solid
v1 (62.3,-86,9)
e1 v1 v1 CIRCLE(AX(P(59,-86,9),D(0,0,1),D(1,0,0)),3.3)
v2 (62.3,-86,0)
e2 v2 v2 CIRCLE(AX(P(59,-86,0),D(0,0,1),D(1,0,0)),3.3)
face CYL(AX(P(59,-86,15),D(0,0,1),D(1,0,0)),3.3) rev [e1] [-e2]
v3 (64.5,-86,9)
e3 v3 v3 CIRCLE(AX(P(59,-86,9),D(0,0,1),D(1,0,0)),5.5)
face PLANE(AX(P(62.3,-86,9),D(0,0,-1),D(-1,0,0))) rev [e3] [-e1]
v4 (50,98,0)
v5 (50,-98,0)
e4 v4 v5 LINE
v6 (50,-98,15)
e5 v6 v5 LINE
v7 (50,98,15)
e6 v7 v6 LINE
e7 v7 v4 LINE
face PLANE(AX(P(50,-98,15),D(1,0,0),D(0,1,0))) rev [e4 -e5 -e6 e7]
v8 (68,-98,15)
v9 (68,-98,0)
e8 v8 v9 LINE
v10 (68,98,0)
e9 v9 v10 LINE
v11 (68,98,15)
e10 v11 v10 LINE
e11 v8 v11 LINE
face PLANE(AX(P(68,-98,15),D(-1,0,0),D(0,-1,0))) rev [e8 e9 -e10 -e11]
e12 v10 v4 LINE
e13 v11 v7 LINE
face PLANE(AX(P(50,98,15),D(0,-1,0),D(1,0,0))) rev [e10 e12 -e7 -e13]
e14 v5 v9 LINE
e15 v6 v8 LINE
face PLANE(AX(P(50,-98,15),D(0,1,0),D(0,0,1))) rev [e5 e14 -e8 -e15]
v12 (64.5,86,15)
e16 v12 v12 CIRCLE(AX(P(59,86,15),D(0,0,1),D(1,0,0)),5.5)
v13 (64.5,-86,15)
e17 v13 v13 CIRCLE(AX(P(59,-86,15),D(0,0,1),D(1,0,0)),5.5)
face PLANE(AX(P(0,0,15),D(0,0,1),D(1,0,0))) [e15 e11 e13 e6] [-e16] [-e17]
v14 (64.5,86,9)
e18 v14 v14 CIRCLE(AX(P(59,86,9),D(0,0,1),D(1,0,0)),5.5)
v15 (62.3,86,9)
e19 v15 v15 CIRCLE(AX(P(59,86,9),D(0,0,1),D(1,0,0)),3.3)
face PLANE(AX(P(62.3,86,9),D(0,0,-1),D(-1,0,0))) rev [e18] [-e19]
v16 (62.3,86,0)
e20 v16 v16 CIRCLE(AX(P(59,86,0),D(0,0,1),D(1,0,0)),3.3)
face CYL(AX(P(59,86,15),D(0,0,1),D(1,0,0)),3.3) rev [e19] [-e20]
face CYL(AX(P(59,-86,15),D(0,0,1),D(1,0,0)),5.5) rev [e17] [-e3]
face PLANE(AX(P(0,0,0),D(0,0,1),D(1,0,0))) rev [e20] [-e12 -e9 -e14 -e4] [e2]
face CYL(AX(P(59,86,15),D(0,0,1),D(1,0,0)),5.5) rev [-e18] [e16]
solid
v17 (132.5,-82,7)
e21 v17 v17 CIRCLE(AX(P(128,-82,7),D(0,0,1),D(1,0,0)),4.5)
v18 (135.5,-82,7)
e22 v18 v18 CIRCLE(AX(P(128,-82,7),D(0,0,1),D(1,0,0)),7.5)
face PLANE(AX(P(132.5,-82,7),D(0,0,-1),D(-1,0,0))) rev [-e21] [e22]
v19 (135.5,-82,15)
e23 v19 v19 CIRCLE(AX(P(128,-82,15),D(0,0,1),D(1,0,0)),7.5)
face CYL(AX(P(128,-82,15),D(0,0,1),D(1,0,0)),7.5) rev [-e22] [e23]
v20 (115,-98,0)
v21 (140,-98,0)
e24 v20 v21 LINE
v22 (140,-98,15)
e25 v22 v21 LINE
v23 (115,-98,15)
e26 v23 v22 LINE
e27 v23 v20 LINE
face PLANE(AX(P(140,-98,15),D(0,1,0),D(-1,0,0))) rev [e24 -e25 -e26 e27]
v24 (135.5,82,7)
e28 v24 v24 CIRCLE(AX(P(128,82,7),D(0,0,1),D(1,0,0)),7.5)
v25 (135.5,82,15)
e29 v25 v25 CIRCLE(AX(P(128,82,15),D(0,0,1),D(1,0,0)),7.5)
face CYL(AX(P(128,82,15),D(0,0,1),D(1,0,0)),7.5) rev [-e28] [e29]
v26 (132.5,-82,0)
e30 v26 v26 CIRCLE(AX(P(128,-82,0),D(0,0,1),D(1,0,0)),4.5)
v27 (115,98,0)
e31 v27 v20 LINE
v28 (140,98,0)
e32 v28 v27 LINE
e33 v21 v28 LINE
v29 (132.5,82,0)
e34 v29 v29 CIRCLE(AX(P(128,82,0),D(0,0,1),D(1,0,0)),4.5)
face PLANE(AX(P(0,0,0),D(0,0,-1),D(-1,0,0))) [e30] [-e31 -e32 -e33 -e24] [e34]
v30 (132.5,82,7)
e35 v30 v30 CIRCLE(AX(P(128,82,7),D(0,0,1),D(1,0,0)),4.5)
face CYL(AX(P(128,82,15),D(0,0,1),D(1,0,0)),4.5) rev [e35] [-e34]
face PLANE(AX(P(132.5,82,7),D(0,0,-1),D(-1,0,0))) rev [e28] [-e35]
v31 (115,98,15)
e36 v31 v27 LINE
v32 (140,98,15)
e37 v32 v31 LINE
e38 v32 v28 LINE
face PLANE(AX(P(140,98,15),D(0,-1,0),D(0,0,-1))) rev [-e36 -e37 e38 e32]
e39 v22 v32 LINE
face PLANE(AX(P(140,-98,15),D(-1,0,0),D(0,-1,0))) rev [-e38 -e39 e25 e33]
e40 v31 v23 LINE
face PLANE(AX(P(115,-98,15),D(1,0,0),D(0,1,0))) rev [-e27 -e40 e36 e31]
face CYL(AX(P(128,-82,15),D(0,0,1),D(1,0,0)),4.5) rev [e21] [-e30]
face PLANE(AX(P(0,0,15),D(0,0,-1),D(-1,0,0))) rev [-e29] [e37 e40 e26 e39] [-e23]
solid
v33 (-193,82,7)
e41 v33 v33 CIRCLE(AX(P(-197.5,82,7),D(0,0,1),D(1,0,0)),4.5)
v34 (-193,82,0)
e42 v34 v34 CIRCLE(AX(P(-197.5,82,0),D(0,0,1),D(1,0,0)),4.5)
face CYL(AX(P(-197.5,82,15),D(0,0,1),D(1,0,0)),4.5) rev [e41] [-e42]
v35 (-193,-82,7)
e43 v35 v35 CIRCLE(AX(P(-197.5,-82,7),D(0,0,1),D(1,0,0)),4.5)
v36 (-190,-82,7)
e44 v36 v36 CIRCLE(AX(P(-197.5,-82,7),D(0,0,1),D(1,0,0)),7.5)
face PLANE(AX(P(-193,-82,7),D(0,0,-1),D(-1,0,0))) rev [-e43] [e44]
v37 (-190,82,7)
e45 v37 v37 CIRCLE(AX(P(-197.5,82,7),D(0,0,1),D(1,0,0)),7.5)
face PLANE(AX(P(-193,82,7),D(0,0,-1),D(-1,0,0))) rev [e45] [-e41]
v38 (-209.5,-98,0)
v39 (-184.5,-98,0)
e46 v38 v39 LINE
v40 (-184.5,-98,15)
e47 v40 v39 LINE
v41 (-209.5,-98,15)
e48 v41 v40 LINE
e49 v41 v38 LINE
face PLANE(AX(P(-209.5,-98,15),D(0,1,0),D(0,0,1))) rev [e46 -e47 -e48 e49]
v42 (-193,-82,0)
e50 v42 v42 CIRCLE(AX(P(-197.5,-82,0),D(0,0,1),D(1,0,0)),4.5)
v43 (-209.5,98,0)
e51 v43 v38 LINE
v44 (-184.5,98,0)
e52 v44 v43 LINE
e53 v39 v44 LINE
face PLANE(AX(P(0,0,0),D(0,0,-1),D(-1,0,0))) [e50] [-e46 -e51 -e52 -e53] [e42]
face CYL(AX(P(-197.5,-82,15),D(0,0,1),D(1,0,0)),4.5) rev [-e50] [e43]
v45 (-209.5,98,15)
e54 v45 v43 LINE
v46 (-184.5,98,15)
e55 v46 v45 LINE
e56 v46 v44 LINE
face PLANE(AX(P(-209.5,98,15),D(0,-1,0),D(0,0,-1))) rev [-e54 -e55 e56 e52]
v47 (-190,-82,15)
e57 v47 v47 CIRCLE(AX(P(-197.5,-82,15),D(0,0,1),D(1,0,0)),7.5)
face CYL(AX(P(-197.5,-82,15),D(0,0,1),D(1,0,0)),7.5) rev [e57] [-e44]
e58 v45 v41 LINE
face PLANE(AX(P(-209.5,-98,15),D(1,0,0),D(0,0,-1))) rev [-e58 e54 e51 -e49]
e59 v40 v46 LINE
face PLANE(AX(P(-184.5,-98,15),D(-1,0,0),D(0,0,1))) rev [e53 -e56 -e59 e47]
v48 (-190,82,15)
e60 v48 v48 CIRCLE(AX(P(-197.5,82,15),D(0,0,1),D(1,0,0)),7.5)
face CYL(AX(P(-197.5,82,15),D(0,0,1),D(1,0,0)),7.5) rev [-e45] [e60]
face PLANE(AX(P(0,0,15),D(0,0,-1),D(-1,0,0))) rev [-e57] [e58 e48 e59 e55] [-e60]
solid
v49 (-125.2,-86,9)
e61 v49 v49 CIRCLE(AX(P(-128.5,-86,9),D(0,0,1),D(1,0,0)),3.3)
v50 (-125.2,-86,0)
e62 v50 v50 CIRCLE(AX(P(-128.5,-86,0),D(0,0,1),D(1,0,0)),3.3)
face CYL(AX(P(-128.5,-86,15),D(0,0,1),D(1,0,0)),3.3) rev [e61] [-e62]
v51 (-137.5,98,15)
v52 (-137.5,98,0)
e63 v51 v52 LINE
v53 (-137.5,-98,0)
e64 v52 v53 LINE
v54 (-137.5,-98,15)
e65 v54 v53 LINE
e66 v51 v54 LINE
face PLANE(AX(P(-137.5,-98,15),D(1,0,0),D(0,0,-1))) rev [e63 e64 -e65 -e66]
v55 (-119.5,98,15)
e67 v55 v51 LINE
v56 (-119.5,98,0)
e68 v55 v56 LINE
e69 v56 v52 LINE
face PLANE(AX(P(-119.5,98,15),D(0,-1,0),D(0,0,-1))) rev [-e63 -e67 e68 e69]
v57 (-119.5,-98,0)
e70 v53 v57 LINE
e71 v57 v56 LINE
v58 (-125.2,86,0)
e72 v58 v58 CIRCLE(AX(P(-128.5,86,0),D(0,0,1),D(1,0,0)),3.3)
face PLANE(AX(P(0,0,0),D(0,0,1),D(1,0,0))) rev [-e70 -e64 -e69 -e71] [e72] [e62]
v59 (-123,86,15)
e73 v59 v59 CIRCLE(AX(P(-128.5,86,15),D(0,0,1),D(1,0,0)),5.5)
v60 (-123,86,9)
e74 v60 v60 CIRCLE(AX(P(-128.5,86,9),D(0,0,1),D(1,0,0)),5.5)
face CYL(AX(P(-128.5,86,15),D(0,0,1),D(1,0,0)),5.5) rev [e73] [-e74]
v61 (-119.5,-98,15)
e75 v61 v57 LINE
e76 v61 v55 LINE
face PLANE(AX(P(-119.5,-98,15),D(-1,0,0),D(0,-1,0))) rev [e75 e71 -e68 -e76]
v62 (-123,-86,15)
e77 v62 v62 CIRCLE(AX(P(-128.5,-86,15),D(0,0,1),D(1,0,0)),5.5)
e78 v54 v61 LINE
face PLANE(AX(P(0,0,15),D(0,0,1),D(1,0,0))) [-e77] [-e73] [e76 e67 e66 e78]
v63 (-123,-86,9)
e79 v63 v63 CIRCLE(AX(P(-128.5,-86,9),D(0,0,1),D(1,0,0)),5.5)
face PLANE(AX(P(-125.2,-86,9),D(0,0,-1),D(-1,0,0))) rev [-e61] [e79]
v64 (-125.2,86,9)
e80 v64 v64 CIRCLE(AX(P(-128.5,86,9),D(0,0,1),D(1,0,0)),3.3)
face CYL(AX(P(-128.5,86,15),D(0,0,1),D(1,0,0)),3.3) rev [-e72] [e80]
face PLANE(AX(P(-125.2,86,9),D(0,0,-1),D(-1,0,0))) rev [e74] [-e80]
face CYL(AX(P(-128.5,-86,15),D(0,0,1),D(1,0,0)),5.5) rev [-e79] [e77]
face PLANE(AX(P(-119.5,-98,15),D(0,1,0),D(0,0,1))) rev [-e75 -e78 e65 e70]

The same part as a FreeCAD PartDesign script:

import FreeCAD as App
import Part
import Sketcher
from FreeCAD import Vector
Q = App.Units.Quantity


def add_polygon(sketch, points):
    """Adds a closed chain of lines whose ends are joined by coincident constraints."""
    first, n = sketch.GeometryCount, len(points)
    for a, b in zip(points, points[1:] + points[:1]):
        sketch.addGeometry(Part.LineSegment(App.Vector(*a, 0), App.Vector(*b, 0)), False)
    for i in range(n):
        sketch.addConstraint(Sketcher.Constraint("Coincident", first + i, 2, first + (i + 1) % n, 1))

doc = App.newDocument("Part")
body = doc.addObject("PartDesign::Body", "Body")

sketch1 = body.newObject("Sketcher::SketchObject", "Sketch")
sketch1.AttachmentSupport = (doc.getObject("XY_Plane"), [""])
sketch1.MapMode = "FlatFace"
add_polygon(sketch1, [(-138, 98), (-138, -98), (-120, -98), (-120, 98)])
sketch1.addConstraint(Sketcher.Constraint("Vertical", 0))
sketch1.addConstraint(Sketcher.Constraint("Horizontal", 1))
sketch1.addConstraint(Sketcher.Constraint("Vertical", 2))
sketch1.addConstraint(Sketcher.Constraint("Horizontal", 3))
sketch1.addConstraint(Sketcher.Constraint("DistanceX", 1, 1, 1, 2, Q("18 mm")))
sketch1.addConstraint(Sketcher.Constraint("DistanceY", 0, 2, 0, 1, Q("196 mm")))
sketch1.addConstraint(Sketcher.Constraint("DistanceY", 0, 2, -1, 1, Q("98 mm")))
sketch1.addConstraint(Sketcher.Constraint("DistanceX", 0, 2, -1, 1, Q("137.5 mm")))
pad1 = body.newObject("PartDesign::Pad", "Pad")
pad1.Profile = sketch1
pad1.Length = 15

sketch2 = body.newObject("Sketcher::SketchObject", "Sketch001")
sketch2.AttachmentSupport = (doc.getObject("YZ_Plane"), [""])
sketch2.MapMode = "FlatFace"
sketch2.AttachmentOffset = App.Placement(Vector(0, 0, -128.5), App.Rotation())
add_polygon(sketch2, [(86, 0), (86, 15), (80.5, 15), (80.5, 9), (82.7, 9), (82.7, 0)])
sketch2.addGeometry(Part.LineSegment(Vector(86, 15, 0), Vector(86, 0, 0)), True)
sketch2.addConstraint(Sketcher.Constraint("Vertical", 0))
sketch2.addConstraint(Sketcher.Constraint("Horizontal", 1))
sketch2.addConstraint(Sketcher.Constraint("Vertical", 2))
sketch2.addConstraint(Sketcher.Constraint("Horizontal", 3))
sketch2.addConstraint(Sketcher.Constraint("Vertical", 4))
sketch2.addConstraint(Sketcher.Constraint("Horizontal", 5))
sketch2.addConstraint(Sketcher.Constraint("Vertical", 6))
sketch2.addConstraint(Sketcher.Constraint("Coincident", 6, 1, 0, 2))
sketch2.addConstraint(Sketcher.Constraint("PointOnObject", 4, 2, -1))
sketch2.addConstraint(Sketcher.Constraint("PointOnObject", 6, 2, -1))
sketch2.addConstraint(Sketcher.Constraint("DistanceY", 0, 1, 0, 2, Q("15 mm")))
sketch2.addConstraint(Sketcher.Constraint("DistanceY", 2, 2, 2, 1, Q("6 mm")))
sketch2.addConstraint(Sketcher.Constraint("DistanceX", 1, 2, 1, 1, Q("5.5 mm")))
sketch2.addConstraint(Sketcher.Constraint("DistanceX", 3, 1, 3, 2, Q("2.2 mm")))
sketch2.addConstraint(Sketcher.Constraint("DistanceX", -1, 1, 0, 2, Q("86 mm")))
groove = body.newObject("PartDesign::Groove", "Groove")
groove.Profile = sketch2
groove.ReferenceAxis = (sketch2, ["Axis0"])
groove.Angle = 360
doc.recompute()

linearpattern = body.newObject("PartDesign::LinearPattern", "LinearPattern")
linearpattern.Originals = [groove]
linearpattern.Direction = (doc.getObject("Y_Axis"), [""])
linearpattern.Mode = "offset"
linearpattern.Offset = 172
linearpattern.Occurrences = 2
linearpattern.Reversed = True
body.Tip = linearpattern
body2 = doc.addObject("PartDesign::Body", "Body001")

sketch3 = body2.newObject("Sketcher::SketchObject", "Sketch002")
sketch3.AttachmentSupport = (doc.getObject("XY_Plane001"), [""])
sketch3.MapMode = "FlatFace"
add_polygon(sketch3, [(115, 98), (115, -98), (140, -98), (140, 98)])
sketch3.addConstraint(Sketcher.Constraint("Vertical", 0))
sketch3.addConstraint(Sketcher.Constraint("Horizontal", 1))
sketch3.addConstraint(Sketcher.Constraint("Vertical", 2))
sketch3.addConstraint(Sketcher.Constraint("Horizontal", 3))
sketch3.addConstraint(Sketcher.Constraint("DistanceX", 1, 1, 1, 2, Q("25 mm")))
sketch3.addConstraint(Sketcher.Constraint("DistanceY", 0, 2, 0, 1, Q("196 mm")))
sketch3.addConstraint(Sketcher.Constraint("DistanceX", -1, 1, 0, 2, Q("115 mm")))
sketch3.addConstraint(Sketcher.Constraint("DistanceY", 0, 2, -1, 1, Q("98 mm")))
pad2 = body2.newObject("PartDesign::Pad", "Pad001")
pad2.Profile = sketch3
pad2.Length = 15

sketch4 = body2.newObject("Sketcher::SketchObject", "Sketch003")
sketch4.AttachmentSupport = (doc.getObject("YZ_Plane001"), [""])
sketch4.MapMode = "FlatFace"
sketch4.AttachmentOffset = App.Placement(Vector(0, 0, 128), App.Rotation())
add_polygon(sketch4, [(-82, 0), (-82, 15), (-89.5, 15), (-89.5, 7), (-86.5, 7), (-86.5, 0)])
sketch4.addGeometry(Part.LineSegment(Vector(-82, 15, 0), Vector(-82, 0, 0)), True)
sketch4.addConstraint(Sketcher.Constraint("Vertical", 0))
sketch4.addConstraint(Sketcher.Constraint("Horizontal", 1))
sketch4.addConstraint(Sketcher.Constraint("Vertical", 2))
sketch4.addConstraint(Sketcher.Constraint("Horizontal", 3))
sketch4.addConstraint(Sketcher.Constraint("Vertical", 4))
sketch4.addConstraint(Sketcher.Constraint("Horizontal", 5))
sketch4.addConstraint(Sketcher.Constraint("Vertical", 6))
sketch4.addConstraint(Sketcher.Constraint("Coincident", 6, 1, 0, 2))
sketch4.addConstraint(Sketcher.Constraint("PointOnObject", 4, 2, -1))
sketch4.addConstraint(Sketcher.Constraint("PointOnObject", 6, 2, -1))
sketch4.addConstraint(Sketcher.Constraint("DistanceX", 3, 1, 3, 2, Q("3 mm")))
sketch4.addConstraint(Sketcher.Constraint("DistanceY", 0, 1, 0, 2, Q("15 mm")))
sketch4.addConstraint(Sketcher.Constraint("DistanceY", 2, 2, 2, 1, Q("8 mm")))
sketch4.addConstraint(Sketcher.Constraint("DistanceX", 1, 2, 1, 1, Q("7.5 mm")))
sketch4.addConstraint(Sketcher.Constraint("DistanceX", 0, 2, -1, 1, Q("82 mm")))
groove2 = body2.newObject("PartDesign::Groove", "Groove001")
groove2.Profile = sketch4
groove2.ReferenceAxis = (sketch4, ["Axis0"])
groove2.Angle = 360
doc.recompute()

linearpattern2 = body2.newObject("PartDesign::LinearPattern", "LinearPattern001")
linearpattern2.Originals = [groove2]
linearpattern2.Direction = (doc.getObject("Y_Axis001"), [""])
linearpattern2.Mode = "offset"
linearpattern2.Offset = 164
linearpattern2.Occurrences = 2
body2.Tip = linearpattern2
body3 = doc.addObject("PartDesign::Body", "Body002")

sketch5 = body3.newObject("Sketcher::SketchObject", "Sketch004")
sketch5.AttachmentSupport = (doc.getObject("XY_Plane002"), [""])
sketch5.MapMode = "FlatFace"
add_polygon(sketch5, [(-210, 98), (-210, -98), (-184, -98), (-184, 98)])
sketch5.addConstraint(Sketcher.Constraint("Vertical", 0))
sketch5.addConstraint(Sketcher.Constraint("Horizontal", 1))
sketch5.addConstraint(Sketcher.Constraint("Vertical", 2))
sketch5.addConstraint(Sketcher.Constraint("Horizontal", 3))
sketch5.addConstraint(Sketcher.Constraint("DistanceX", 1, 1, 1, 2, Q("25 mm")))
sketch5.addConstraint(Sketcher.Constraint("DistanceY", 0, 2, 0, 1, Q("196 mm")))
sketch5.addConstraint(Sketcher.Constraint("DistanceY", 0, 2, -1, 1, Q("98 mm")))
sketch5.addConstraint(Sketcher.Constraint("DistanceX", 0, 2, -1, 1, Q("209.5 mm")))
pad3 = body3.newObject("PartDesign::Pad", "Pad002")
pad3.Profile = sketch5
pad3.Length = 15

sketch6 = body3.newObject("Sketcher::SketchObject", "Sketch005")
sketch6.AttachmentSupport = (doc.getObject("YZ_Plane002"), [""])
sketch6.MapMode = "FlatFace"
sketch6.AttachmentOffset = App.Placement(Vector(0, 0, -197.5), App.Rotation())
add_polygon(sketch6, [(82, 0), (82, 15), (74.5, 15), (74.5, 7), (77.5, 7), (77.5, 0)])
sketch6.addGeometry(Part.LineSegment(Vector(82, 15, 0), Vector(82, 0, 0)), True)
sketch6.addConstraint(Sketcher.Constraint("Vertical", 0))
sketch6.addConstraint(Sketcher.Constraint("Horizontal", 1))
sketch6.addConstraint(Sketcher.Constraint("Vertical", 2))
sketch6.addConstraint(Sketcher.Constraint("Horizontal", 3))
sketch6.addConstraint(Sketcher.Constraint("Vertical", 4))
sketch6.addConstraint(Sketcher.Constraint("Horizontal", 5))
sketch6.addConstraint(Sketcher.Constraint("Vertical", 6))
sketch6.addConstraint(Sketcher.Constraint("Coincident", 6, 1, 0, 2))
sketch6.addConstraint(Sketcher.Constraint("PointOnObject", 4, 2, -1))
sketch6.addConstraint(Sketcher.Constraint("PointOnObject", 6, 2, -1))
sketch6.addConstraint(Sketcher.Constraint("DistanceX", 3, 1, 3, 2, Q("3 mm")))
sketch6.addConstraint(Sketcher.Constraint("DistanceY", 0, 1, 0, 2, Q("15 mm")))
sketch6.addConstraint(Sketcher.Constraint("DistanceY", 2, 2, 2, 1, Q("8 mm")))
sketch6.addConstraint(Sketcher.Constraint("DistanceX", 1, 2, 1, 1, Q("7.5 mm")))
sketch6.addConstraint(Sketcher.Constraint("DistanceX", -1, 1, 0, 2, Q("82 mm")))
groove3 = body3.newObject("PartDesign::Groove", "Groove002")
groove3.Profile = sketch6
groove3.ReferenceAxis = (sketch6, ["Axis0"])
groove3.Angle = 360
doc.recompute()

linearpattern3 = body3.newObject("PartDesign::LinearPattern", "LinearPattern002")
linearpattern3.Originals = [groove3]
linearpattern3.Direction = (doc.getObject("Y_Axis002"), [""])
linearpattern3.Mode = "offset"
linearpattern3.Offset = 164
linearpattern3.Occurrences = 2
linearpattern3.Reversed = True
body3.Tip = linearpattern3
body4 = doc.addObject("PartDesign::Body", "Body003")

sketch7 = body4.newObject("Sketcher::SketchObject", "Sketch006")
sketch7.AttachmentSupport = (doc.getObject("XY_Plane003"), [""])
sketch7.MapMode = "FlatFace"
add_polygon(sketch7, [(50, 98), (50, -98), (68, -98), (68, 98)])
sketch7.addConstraint(Sketcher.Constraint("Vertical", 0))
sketch7.addConstraint(Sketcher.Constraint("Horizontal", 1))
sketch7.addConstraint(Sketcher.Constraint("Vertical", 2))
sketch7.addConstraint(Sketcher.Constraint("Horizontal", 3))
sketch7.addConstraint(Sketcher.Constraint("DistanceX", 1, 1, 1, 2, Q("18 mm")))
sketch7.addConstraint(Sketcher.Constraint("DistanceY", 0, 2, 0, 1, Q("196 mm")))
sketch7.addConstraint(Sketcher.Constraint("DistanceX", -1, 1, 0, 2, Q("50 mm")))
sketch7.addConstraint(Sketcher.Constraint("DistanceY", 0, 2, -1, 1, Q("98 mm")))
pad4 = body4.newObject("PartDesign::Pad", "Pad003")
pad4.Profile = sketch7
pad4.Length = 15

sketch8 = body4.newObject("Sketcher::SketchObject", "Sketch007")
sketch8.AttachmentSupport = (doc.getObject("YZ_Plane003"), [""])
sketch8.MapMode = "FlatFace"
sketch8.AttachmentOffset = App.Placement(Vector(0, 0, 59), App.Rotation())
add_polygon(sketch8, [(86, 0), (86, 15), (80.5, 15), (80.5, 9), (82.7, 9), (82.7, 0)])
sketch8.addGeometry(Part.LineSegment(Vector(86, 15, 0), Vector(86, 0, 0)), True)
sketch8.addConstraint(Sketcher.Constraint("Vertical", 0))
sketch8.addConstraint(Sketcher.Constraint("Horizontal", 1))
sketch8.addConstraint(Sketcher.Constraint("Vertical", 2))
sketch8.addConstraint(Sketcher.Constraint("Horizontal", 3))
sketch8.addConstraint(Sketcher.Constraint("Vertical", 4))
sketch8.addConstraint(Sketcher.Constraint("Horizontal", 5))
sketch8.addConstraint(Sketcher.Constraint("Vertical", 6))
sketch8.addConstraint(Sketcher.Constraint("Coincident", 6, 1, 0, 2))
sketch8.addConstraint(Sketcher.Constraint("PointOnObject", 4, 2, -1))
sketch8.addConstraint(Sketcher.Constraint("PointOnObject", 6, 2, -1))
sketch8.addConstraint(Sketcher.Constraint("DistanceY", 0, 1, 0, 2, Q("15 mm")))
sketch8.addConstraint(Sketcher.Constraint("DistanceY", 2, 2, 2, 1, Q("6 mm")))
sketch8.addConstraint(Sketcher.Constraint("DistanceX", 1, 2, 1, 1, Q("5.5 mm")))
sketch8.addConstraint(Sketcher.Constraint("DistanceX", 3, 1, 3, 2, Q("2.2 mm")))
sketch8.addConstraint(Sketcher.Constraint("DistanceX", -1, 1, 0, 2, Q("86 mm")))
groove4 = body4.newObject("PartDesign::Groove", "Groove003")
groove4.Profile = sketch8
groove4.ReferenceAxis = (sketch8, ["Axis0"])
groove4.Angle = 360
doc.recompute()

linearpattern4 = body4.newObject("PartDesign::LinearPattern", "LinearPattern003")
linearpattern4.Originals = [groove4]
linearpattern4.Direction = (doc.getObject("Y_Axis003"), [""])
linearpattern4.Mode = "offset"
linearpattern4.Offset = 172
linearpattern4.Occurrences = 2
linearpattern4.Reversed = True
body4.Tip = linearpattern4

doc.recompute()
